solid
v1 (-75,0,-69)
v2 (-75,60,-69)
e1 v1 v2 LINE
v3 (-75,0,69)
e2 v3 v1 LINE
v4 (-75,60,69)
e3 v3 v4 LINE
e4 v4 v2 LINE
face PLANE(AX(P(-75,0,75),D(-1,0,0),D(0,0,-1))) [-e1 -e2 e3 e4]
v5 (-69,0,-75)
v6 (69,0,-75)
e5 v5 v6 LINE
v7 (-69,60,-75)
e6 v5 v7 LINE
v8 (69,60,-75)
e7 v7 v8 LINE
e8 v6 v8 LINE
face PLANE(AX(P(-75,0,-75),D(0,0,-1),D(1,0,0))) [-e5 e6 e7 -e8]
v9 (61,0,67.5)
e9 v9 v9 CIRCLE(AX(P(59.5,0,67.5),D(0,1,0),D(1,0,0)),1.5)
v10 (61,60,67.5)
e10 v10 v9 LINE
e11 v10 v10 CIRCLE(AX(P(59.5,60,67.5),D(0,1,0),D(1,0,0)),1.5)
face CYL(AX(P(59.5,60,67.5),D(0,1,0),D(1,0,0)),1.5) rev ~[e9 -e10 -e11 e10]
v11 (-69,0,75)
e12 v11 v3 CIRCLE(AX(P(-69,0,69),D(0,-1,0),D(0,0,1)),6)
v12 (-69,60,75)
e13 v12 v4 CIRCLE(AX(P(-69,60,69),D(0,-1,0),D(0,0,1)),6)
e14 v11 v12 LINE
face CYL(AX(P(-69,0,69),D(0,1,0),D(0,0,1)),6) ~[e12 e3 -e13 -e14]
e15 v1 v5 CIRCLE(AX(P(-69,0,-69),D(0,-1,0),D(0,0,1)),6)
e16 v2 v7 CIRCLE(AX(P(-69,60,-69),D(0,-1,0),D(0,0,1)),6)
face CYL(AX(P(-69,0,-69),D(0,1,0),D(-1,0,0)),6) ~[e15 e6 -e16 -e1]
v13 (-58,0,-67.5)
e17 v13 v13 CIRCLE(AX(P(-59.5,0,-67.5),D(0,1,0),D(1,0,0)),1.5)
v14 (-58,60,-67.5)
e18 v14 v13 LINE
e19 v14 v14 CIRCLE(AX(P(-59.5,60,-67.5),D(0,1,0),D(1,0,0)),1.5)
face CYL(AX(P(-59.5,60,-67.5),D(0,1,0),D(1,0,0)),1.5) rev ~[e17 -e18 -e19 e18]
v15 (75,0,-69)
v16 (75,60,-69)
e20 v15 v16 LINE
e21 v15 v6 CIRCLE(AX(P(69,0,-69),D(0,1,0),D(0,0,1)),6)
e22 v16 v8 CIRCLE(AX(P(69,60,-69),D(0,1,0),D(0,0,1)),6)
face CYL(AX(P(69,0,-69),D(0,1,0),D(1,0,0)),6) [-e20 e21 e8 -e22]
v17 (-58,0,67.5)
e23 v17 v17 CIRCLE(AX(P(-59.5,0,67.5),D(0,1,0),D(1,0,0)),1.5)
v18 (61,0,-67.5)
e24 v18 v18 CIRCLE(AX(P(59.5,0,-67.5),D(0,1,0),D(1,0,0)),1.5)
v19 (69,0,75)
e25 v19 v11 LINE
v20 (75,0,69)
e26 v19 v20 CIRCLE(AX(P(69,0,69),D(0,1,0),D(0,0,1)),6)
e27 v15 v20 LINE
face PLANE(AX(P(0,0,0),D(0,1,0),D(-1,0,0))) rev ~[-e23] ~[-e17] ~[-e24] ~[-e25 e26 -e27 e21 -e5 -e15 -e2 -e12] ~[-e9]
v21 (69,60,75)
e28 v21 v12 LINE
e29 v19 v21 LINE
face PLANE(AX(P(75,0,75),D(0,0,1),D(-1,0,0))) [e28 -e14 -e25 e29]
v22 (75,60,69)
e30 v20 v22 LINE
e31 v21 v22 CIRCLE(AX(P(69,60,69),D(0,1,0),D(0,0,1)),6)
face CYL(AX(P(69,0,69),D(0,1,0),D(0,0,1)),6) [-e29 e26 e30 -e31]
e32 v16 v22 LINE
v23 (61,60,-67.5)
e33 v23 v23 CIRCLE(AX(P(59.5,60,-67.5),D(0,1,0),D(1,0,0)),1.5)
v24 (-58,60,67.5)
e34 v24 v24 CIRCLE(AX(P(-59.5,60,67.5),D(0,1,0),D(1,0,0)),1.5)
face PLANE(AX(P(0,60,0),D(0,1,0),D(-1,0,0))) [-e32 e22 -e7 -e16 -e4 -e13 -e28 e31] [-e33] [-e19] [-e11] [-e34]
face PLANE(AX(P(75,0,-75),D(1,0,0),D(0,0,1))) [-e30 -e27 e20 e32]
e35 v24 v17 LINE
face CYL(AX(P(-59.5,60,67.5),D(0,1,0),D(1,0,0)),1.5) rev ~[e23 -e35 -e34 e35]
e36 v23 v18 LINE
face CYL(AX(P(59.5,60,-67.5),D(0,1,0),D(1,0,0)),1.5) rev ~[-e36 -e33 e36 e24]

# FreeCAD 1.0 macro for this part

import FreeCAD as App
import Part
import Sketcher
from FreeCAD import Vector


def edges_at(feature, points):
    """Names of the edges that pass closest to the given points."""
    edges = feature.Shape.Edges
    near = lambda p: min(range(len(edges)), key=lambda i: edges[i].distToShape(Part.Vertex(*p))[0])
    return sorted({f"Edge{near(p) + 1}" for p in points})

doc = App.newDocument("Part")
params = doc.addObject("Spreadsheet::Sheet", "Params")
for row, (alias, value) in enumerate([
    ("sketch1_width", "150 mm"),
    ("pad1_length", "60 mm"),
    ("sketch2_diameter", "3 mm"),
    ("fillet_radius", "6 mm"),
], start=1):
    params.set(f"A{row}", alias)
    params.set(f"B{row}", "=" + value)
    params.setAlias(f"B{row}", alias)

body = doc.addObject("PartDesign::Body", "Body")

sketch1 = body.newObject("Sketcher::SketchObject", "Sketch")
sketch1.AttachmentSupport = (doc.getObject("XZ_Plane"), [""])
sketch1.MapMode = "FlatFace"
sketch1.addGeometry(Part.LineSegment(Vector(-75, 75, 0), Vector(75, 75, 0)), False)
sketch1.addGeometry(Part.LineSegment(Vector(75, 75, 0), Vector(75, -75, 0)), False)
sketch1.addGeometry(Part.LineSegment(Vector(75, -75, 0), Vector(-75, -75, 0)), False)
sketch1.addGeometry(Part.LineSegment(Vector(-75, -75, 0), Vector(-75, 75, 0)), False)
sketch1.addConstraint(Sketcher.Constraint("Coincident", 0, 2, 1, 1))
sketch1.addConstraint(Sketcher.Constraint("Coincident", 1, 2, 2, 1))
sketch1.addConstraint(Sketcher.Constraint("Coincident", 2, 2, 3, 1))
sketch1.addConstraint(Sketcher.Constraint("Coincident", 3, 2, 0, 1))
sketch1.addConstraint(Sketcher.Constraint("Horizontal", 0))
sketch1.addConstraint(Sketcher.Constraint("Vertical", 1))
sketch1.addConstraint(Sketcher.Constraint("Horizontal", 2))
sketch1.addConstraint(Sketcher.Constraint("Vertical", 3))
sketch1.addConstraint(Sketcher.Constraint("Symmetric", 0, 2, 2, 2, -1, 1))
sketch1.addConstraint(Sketcher.Constraint("Equal", 2, 1))
sketch1.addConstraint(Sketcher.Constraint("DistanceX", 0, 1, 0, 2, 150.0))
sketch1.setExpression("Constraints[10]", "Params.sketch1_width")
pad1 = body.newObject("PartDesign::Pad", "Pad")
pad1.Profile = sketch1
pad1.setExpression("Length", "Params.pad1_length")
pad1.Reversed = True

sketch2 = body.newObject("Sketcher::SketchObject", "Sketch001")
sketch2.AttachmentSupport = (doc.getObject("XZ_Plane"), [""])
sketch2.MapMode = "FlatFace"
sketch2.AttachmentOffset = App.Placement(Vector(0, 0, -60), App.Rotation())
sketch2.addGeometry(Part.Circle(Vector(-59.5, -67.5, 0), Vector(0, 0, 1), 1.5), False)
sketch2.addGeometry(Part.Circle(Vector(59.5, -67.5, 0), Vector(0, 0, 1), 1.5), False)
sketch2.addGeometry(Part.Circle(Vector(59.5, 67.5, 0), Vector(0, 0, 1), 1.5), False)
sketch2.addGeometry(Part.Circle(Vector(-59.5, 67.5, 0), Vector(0, 0, 1), 1.5), False)
sketch2.addConstraint(Sketcher.Constraint("Equal", 0, 1))
sketch2.addConstraint(Sketcher.Constraint("Equal", 1, 2))
sketch2.addConstraint(Sketcher.Constraint("Equal", 2, 3))
sketch2.addConstraint(Sketcher.Constraint("Symmetric", 0, 3, 2, 3, -1, 1))
sketch2.addConstraint(Sketcher.Constraint("Symmetric", 1, 3, 3, 3, -1, 1))
sketch2.addConstraint(Sketcher.Constraint("Symmetric", 0, 3, 1, 3, -2))
sketch2.addConstraint(Sketcher.Constraint("Diameter", 0, 3.0))
sketch2.addConstraint(Sketcher.Constraint("DistanceX", 0, 3, 1, 3, 119.0))
sketch2.addConstraint(Sketcher.Constraint("DistanceY", 1, 3, 2, 3, 135.0))
sketch2.setExpression("Constraints[6]", "Params.sketch2_diameter")
pocket1 = body.newObject("PartDesign::Pocket", "Pocket")
pocket1.Profile = sketch2
pocket1.Type = "ThroughAll"
pocket1.Reversed = True
doc.recompute()

fillet = body.newObject("PartDesign::Fillet", "Fillet")
fillet.Base = (pocket1, edges_at(pocket1, [
    (75, 30, 75),
    (-75, 30, 75),
    (75, 30, -75),
    (-75, 30, -75),
]))
fillet.setExpression("Radius", "Params.fillet_radius")

doc.recompute()
